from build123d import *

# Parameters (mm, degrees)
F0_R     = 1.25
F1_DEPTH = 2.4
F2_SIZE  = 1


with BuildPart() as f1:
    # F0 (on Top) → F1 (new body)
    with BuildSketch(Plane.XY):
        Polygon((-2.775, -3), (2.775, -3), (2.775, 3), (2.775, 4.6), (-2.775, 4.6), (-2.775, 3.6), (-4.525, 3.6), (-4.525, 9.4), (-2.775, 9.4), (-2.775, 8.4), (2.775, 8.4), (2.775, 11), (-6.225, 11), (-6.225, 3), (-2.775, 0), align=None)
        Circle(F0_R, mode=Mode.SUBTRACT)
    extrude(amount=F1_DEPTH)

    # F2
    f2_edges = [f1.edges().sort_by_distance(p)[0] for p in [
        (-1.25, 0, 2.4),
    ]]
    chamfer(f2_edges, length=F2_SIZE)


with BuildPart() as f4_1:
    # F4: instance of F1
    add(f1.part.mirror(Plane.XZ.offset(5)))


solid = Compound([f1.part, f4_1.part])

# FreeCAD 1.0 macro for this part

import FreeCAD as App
import Part
import Sketcher


def edges_at(feature, points):
    """Names of the edges that pass closest to the given points."""
    edges = feature.Shape.Edges
    near = lambda p: min(range(len(edges)), key=lambda i: edges[i].distToShape(Part.Vertex(*p))[0])
    return sorted({f"Edge{near(p) + 1}" for p in points})


def add_polygon(sketch, points):
    """Adds a closed chain of lines whose ends are joined by coincident constraints."""
    first, n = sketch.GeometryCount, len(points)
    for a, b in zip(points, points[1:] + points[:1]):
        sketch.addGeometry(Part.LineSegment(App.Vector(*a, 0), App.Vector(*b, 0)), False)
    for i in range(n):
        sketch.addConstraint(Sketcher.Constraint("Coincident", first + i, 2, first + (i + 1) % n, 1))

doc = App.newDocument("Part")
body = doc.addObject("PartDesign::Body", "Body")

sketch1 = body.newObject("Sketcher::SketchObject", "Sketch")
sketch1.AttachmentSupport = (doc.getObject("XY_Plane"), [""])
sketch1.MapMode = "FlatFace"
add_polygon(sketch1, [(-2.8, -3), (2.8, -3), (2.8, 4.6), (-2.8, 4.6), (-2.8, 3.6), (-4.5, 3.6), (-4.5, 9.4), (-2.8, 9.4), (-2.8, 8.4), (2.8, 8.4), (2.8, 11), (-6.2, 11), (-6.2, 3), (-2.8, 0)])
sketch1.addGeometry(Part.Circle(App.Vector(0, 0, 0), App.Vector(0, 0, 1), 1.2), False)
sketch1.addConstraint([
    Sketcher.Constraint("Horizontal", 0),
    Sketcher.Constraint("Vertical", 1),
    Sketcher.Constraint("Horizontal", 2),
    Sketcher.Constraint("Vertical", 3),
    Sketcher.Constraint("Horizontal", 4),
    Sketcher.Constraint("Vertical", 5),
    Sketcher.Constraint("Horizontal", 6),
    Sketcher.Constraint("Vertical", 7),
    Sketcher.Constraint("Horizontal", 8),
    Sketcher.Constraint("Vertical", 9),
    Sketcher.Constraint("Horizontal", 10),
    Sketcher.Constraint("Vertical", 11),
    Sketcher.Constraint("Vertical", 13),
    Sketcher.Constraint("Coincident", 14, 3, -1, 1),
    Sketcher.Constraint("PointOnObject", 12, 2, -1),
    Sketcher.Constraint("Vertical", 3, 2, 6, 2),
    Sketcher.Constraint("Vertical", 1, 2, 8, 2),
    Sketcher.Constraint("Vertical", 7, 2, 12, 2),
    Sketcher.Constraint("Equal", 3, 7),
    Sketcher.Constraint("Diameter", 14, 2.5),
    Sketcher.Constraint("DistanceX", 10, 2, 10, 1, 9.0),
    Sketcher.Constraint("DistanceY", 3, 2, 3, 1, 1.0),
    Sketcher.Constraint("DistanceY", 11, 2, 11, 1, 8.0),
    Sketcher.Constraint("DistanceY", 13, 2, 13, 1, 3.0),
    Sketcher.Constraint("DistanceY", 1, 1, 1, 2, 7.6),
    Sketcher.Constraint("DistanceY", 5, 1, 5, 2, 5.8),
    Sketcher.Constraint("DistanceY", 9, 1, 9, 2, 2.6),
    Sketcher.Constraint("DistanceX", 0, 1, 0, 2, 5.55),
    Sketcher.Constraint("DistanceX", 4, 2, 4, 1, 1.75),
    Sketcher.Constraint("DistanceX", -1, 1, 0, 2, 2.775),
])
pad1 = body.newObject("PartDesign::Pad", "Pad")
pad1.Profile = sketch1
pad1.Length = 2.4
doc.recompute()

chamfer = body.newObject("PartDesign::Chamfer", "Chamfer")
chamfer.Base = (pad1, edges_at(pad1, [(-1.25, 0, 2.4)]))
chamfer.Size = 1
body2 = doc.addObject("PartDesign::Body", "Body001")
doc.recompute()

mirroring = doc.addObject("Part::Mirroring", "Mirroring")
mirroring.Source = body
mirroring.Base = App.Vector(0, -5, 0)
mirroring.Normal = App.Vector(0, -1, 0)
body2.BaseFeature = mirroring
doc.recompute()
mirroring.Visibility = False

doc.recompute()
